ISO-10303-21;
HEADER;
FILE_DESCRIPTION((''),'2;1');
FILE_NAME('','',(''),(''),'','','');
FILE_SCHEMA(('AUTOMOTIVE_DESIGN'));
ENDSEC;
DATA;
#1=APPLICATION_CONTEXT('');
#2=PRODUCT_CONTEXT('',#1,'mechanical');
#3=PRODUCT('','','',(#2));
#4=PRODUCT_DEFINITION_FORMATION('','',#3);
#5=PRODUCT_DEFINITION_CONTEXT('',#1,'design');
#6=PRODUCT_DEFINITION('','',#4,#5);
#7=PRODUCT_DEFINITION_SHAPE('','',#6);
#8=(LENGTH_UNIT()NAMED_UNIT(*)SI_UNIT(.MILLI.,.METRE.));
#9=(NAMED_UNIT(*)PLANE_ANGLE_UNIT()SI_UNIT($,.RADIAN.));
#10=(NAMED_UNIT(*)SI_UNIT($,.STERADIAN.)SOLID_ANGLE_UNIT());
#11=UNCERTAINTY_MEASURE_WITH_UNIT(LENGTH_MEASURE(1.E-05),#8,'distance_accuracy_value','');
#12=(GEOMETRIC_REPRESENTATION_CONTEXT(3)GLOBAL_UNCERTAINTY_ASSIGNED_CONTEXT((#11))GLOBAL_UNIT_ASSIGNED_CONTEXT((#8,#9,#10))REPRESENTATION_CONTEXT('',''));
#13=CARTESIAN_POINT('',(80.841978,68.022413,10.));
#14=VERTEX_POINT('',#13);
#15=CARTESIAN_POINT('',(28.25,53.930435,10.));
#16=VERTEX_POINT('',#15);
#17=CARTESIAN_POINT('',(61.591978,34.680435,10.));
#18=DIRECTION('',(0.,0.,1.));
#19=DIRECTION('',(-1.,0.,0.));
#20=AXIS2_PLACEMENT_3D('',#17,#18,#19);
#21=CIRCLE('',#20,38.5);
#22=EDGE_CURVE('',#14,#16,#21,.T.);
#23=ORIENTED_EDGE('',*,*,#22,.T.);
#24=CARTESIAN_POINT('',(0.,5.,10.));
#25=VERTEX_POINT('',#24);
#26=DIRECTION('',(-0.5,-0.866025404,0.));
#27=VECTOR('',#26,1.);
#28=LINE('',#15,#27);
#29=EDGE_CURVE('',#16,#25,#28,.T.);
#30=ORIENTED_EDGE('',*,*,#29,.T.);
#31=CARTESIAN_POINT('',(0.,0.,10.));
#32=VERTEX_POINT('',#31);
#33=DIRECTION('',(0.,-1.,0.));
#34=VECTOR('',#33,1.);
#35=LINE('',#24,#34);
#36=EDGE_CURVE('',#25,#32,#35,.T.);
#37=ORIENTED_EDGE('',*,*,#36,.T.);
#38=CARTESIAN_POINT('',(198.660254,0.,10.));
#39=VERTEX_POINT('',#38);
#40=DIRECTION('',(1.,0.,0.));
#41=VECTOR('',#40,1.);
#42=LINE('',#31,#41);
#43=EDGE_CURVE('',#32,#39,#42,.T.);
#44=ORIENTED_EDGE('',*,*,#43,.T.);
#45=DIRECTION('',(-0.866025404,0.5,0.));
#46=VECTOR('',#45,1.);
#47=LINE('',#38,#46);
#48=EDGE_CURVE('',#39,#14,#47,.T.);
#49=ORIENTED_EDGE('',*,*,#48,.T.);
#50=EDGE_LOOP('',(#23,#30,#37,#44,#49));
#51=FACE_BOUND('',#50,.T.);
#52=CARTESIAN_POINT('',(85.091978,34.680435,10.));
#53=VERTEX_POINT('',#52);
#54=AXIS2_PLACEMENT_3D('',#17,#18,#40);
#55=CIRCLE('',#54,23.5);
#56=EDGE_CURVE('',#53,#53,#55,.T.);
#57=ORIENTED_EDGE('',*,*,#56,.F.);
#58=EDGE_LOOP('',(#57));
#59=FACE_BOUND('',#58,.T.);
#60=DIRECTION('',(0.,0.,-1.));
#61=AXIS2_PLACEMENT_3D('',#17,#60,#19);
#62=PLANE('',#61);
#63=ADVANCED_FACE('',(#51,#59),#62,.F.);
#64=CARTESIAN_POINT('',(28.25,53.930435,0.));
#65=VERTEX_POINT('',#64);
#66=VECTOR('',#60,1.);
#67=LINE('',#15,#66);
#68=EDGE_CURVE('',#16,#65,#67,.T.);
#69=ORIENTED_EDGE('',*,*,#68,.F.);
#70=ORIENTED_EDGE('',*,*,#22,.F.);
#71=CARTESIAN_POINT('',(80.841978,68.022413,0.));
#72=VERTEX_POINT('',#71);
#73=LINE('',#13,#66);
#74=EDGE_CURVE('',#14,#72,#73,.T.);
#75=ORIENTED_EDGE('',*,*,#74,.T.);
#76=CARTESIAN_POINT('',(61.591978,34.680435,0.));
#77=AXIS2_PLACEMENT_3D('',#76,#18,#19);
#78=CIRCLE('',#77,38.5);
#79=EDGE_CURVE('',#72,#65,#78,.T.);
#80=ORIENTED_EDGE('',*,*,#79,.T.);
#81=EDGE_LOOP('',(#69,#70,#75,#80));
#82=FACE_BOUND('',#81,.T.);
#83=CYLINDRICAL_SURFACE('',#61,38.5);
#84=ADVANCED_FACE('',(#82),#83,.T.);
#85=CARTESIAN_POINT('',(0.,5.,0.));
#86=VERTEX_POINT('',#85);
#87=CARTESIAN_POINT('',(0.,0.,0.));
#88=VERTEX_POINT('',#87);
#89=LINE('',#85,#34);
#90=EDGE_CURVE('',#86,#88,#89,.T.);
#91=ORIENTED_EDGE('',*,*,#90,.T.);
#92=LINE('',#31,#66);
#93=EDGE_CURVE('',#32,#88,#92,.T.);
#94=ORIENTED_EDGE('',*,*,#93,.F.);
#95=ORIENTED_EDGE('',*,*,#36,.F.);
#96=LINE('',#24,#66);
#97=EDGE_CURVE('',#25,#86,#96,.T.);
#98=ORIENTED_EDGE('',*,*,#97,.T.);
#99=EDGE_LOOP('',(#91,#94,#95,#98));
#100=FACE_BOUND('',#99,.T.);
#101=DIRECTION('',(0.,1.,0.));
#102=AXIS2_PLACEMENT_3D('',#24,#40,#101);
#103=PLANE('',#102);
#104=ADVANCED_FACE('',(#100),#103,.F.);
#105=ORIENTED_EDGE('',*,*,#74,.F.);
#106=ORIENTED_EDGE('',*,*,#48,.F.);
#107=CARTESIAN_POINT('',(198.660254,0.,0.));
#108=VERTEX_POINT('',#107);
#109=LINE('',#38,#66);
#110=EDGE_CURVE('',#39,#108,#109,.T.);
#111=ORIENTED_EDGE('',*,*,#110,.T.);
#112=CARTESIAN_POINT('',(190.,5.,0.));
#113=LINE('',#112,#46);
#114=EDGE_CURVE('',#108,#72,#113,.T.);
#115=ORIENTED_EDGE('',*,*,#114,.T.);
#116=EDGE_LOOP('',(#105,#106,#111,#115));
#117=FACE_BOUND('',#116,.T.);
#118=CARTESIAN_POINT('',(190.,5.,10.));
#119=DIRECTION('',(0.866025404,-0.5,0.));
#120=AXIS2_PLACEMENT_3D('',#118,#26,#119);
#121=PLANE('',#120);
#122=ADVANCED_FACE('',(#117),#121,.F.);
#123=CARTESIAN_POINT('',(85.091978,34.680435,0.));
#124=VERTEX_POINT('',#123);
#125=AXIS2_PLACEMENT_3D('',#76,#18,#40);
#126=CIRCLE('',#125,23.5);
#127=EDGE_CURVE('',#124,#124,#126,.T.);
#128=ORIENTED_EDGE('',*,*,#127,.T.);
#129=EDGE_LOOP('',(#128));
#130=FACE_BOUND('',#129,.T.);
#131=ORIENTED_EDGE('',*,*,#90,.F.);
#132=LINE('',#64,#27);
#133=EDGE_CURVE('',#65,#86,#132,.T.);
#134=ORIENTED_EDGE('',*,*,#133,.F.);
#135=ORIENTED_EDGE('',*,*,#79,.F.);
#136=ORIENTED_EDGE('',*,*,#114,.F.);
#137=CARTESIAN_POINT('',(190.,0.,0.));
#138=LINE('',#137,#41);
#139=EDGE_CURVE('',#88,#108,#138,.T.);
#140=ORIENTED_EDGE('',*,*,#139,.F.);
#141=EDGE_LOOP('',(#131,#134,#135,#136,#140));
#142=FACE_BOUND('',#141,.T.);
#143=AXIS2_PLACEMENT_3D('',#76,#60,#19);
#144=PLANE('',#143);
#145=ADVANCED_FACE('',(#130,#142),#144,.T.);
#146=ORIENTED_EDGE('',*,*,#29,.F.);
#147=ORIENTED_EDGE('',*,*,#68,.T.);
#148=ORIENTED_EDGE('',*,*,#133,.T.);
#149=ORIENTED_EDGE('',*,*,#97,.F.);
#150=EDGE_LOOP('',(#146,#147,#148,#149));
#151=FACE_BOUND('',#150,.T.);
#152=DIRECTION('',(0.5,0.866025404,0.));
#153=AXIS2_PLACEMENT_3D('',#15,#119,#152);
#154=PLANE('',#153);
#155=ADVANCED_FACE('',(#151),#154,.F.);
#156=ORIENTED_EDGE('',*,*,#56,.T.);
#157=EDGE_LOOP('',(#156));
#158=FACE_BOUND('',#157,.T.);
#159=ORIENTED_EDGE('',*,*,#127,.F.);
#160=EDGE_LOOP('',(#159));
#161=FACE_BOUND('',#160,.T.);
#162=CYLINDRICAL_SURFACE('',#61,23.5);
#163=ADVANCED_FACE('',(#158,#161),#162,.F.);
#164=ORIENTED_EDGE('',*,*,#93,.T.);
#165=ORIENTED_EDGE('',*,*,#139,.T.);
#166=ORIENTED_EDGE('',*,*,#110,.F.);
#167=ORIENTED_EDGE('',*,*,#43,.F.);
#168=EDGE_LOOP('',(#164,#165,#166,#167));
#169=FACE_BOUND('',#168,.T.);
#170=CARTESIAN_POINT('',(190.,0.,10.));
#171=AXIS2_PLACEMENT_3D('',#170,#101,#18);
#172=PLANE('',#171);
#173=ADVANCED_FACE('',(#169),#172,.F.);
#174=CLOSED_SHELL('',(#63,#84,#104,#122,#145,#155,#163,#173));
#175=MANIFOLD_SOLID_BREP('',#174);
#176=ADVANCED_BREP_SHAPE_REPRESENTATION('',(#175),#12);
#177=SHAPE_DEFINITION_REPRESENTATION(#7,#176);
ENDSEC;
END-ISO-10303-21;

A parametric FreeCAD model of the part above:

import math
import FreeCAD as App
import Part
import Sketcher
from FreeCAD import Vector
Q = App.Units.Quantity

doc = App.newDocument("Part")
body = doc.addObject("PartDesign::Body", "Body")

sketch1 = body.newObject("Sketcher::SketchObject", "Sketch")
sketch1.AttachmentSupport = (doc.getObject("XY_Plane"), [""])
sketch1.MapMode = "FlatFace"
sketch1.addGeometry(Part.LineSegment(Vector(0, 0, 0), Vector(199, 0, 0)), False)
sketch1.addGeometry(Part.LineSegment(Vector(199, 0, 0), Vector(190, 5, 0)), False)
sketch1.addGeometry(Part.LineSegment(Vector(190, 5, 0), Vector(81, 68, 0)), False)
sketch1.addGeometry(Part.ArcOfCircle(Part.Circle(Vector(62, 35, 0), Vector(0, 0, 1), 39), math.radians(60), math.radians(150)), False)
sketch1.addGeometry(Part.LineSegment(Vector(28, 54, 0), Vector(0, 5, 0)), False)
sketch1.addGeometry(Part.LineSegment(Vector(0, 5, 0), Vector(0, 0, 0)), False)
sketch1.addGeometry(Part.Circle(Vector(62, 35, 0), Vector(0, 0, 1), 24), False)
sketch1.addConstraint(Sketcher.Constraint("Coincident", 0, 2, 1, 1))
sketch1.addConstraint(Sketcher.Constraint("Coincident", 1, 2, 2, 1))
sketch1.addConstraint(Sketcher.Constraint("Tangent", 2, 2, 3, 1))
sketch1.addConstraint(Sketcher.Constraint("Tangent", 3, 2, 4, 1))
sketch1.addConstraint(Sketcher.Constraint("Coincident", 4, 2, 5, 1))
sketch1.addConstraint(Sketcher.Constraint("Coincident", 5, 2, 0, 1))
sketch1.addConstraint(Sketcher.Constraint("Horizontal", 0))
sketch1.addConstraint(Sketcher.Constraint("Vertical", 5))
sketch1.addConstraint(Sketcher.Constraint("Coincident", 5, 2, -1, 1))
sketch1.addConstraint(Sketcher.Constraint("Coincident", 6, 3, 3, 3))
sketch1.addConstraint(Sketcher.Constraint("Parallel", 1, 2))
sketch1.addConstraint(Sketcher.Constraint("Perpendicular", 2, 4))
sketch1.addConstraint(Sketcher.Constraint("Horizontal", 1, 2, 4, 2))
sketch1.addConstraint(Sketcher.Constraint("Diameter", 6, Q("47 mm")))
sketch1.addConstraint(Sketcher.Constraint("Radius", 3, Q("38.5 mm")))
sketch1.addConstraint(Sketcher.Constraint("DistanceY", 5, 2, 5, 1, Q("5 mm")))
sketch1.addConstraint(Sketcher.Constraint("Angle", 1, Q("150 deg")))
sketch1.addConstraint(Sketcher.Constraint("DistanceX", -1, 1, 1, 2, Q("190 mm")))
pad1 = body.newObject("PartDesign::Pad", "Pad")
pad1.Profile = sketch1
pad1.Length = 10

doc.recompute()
